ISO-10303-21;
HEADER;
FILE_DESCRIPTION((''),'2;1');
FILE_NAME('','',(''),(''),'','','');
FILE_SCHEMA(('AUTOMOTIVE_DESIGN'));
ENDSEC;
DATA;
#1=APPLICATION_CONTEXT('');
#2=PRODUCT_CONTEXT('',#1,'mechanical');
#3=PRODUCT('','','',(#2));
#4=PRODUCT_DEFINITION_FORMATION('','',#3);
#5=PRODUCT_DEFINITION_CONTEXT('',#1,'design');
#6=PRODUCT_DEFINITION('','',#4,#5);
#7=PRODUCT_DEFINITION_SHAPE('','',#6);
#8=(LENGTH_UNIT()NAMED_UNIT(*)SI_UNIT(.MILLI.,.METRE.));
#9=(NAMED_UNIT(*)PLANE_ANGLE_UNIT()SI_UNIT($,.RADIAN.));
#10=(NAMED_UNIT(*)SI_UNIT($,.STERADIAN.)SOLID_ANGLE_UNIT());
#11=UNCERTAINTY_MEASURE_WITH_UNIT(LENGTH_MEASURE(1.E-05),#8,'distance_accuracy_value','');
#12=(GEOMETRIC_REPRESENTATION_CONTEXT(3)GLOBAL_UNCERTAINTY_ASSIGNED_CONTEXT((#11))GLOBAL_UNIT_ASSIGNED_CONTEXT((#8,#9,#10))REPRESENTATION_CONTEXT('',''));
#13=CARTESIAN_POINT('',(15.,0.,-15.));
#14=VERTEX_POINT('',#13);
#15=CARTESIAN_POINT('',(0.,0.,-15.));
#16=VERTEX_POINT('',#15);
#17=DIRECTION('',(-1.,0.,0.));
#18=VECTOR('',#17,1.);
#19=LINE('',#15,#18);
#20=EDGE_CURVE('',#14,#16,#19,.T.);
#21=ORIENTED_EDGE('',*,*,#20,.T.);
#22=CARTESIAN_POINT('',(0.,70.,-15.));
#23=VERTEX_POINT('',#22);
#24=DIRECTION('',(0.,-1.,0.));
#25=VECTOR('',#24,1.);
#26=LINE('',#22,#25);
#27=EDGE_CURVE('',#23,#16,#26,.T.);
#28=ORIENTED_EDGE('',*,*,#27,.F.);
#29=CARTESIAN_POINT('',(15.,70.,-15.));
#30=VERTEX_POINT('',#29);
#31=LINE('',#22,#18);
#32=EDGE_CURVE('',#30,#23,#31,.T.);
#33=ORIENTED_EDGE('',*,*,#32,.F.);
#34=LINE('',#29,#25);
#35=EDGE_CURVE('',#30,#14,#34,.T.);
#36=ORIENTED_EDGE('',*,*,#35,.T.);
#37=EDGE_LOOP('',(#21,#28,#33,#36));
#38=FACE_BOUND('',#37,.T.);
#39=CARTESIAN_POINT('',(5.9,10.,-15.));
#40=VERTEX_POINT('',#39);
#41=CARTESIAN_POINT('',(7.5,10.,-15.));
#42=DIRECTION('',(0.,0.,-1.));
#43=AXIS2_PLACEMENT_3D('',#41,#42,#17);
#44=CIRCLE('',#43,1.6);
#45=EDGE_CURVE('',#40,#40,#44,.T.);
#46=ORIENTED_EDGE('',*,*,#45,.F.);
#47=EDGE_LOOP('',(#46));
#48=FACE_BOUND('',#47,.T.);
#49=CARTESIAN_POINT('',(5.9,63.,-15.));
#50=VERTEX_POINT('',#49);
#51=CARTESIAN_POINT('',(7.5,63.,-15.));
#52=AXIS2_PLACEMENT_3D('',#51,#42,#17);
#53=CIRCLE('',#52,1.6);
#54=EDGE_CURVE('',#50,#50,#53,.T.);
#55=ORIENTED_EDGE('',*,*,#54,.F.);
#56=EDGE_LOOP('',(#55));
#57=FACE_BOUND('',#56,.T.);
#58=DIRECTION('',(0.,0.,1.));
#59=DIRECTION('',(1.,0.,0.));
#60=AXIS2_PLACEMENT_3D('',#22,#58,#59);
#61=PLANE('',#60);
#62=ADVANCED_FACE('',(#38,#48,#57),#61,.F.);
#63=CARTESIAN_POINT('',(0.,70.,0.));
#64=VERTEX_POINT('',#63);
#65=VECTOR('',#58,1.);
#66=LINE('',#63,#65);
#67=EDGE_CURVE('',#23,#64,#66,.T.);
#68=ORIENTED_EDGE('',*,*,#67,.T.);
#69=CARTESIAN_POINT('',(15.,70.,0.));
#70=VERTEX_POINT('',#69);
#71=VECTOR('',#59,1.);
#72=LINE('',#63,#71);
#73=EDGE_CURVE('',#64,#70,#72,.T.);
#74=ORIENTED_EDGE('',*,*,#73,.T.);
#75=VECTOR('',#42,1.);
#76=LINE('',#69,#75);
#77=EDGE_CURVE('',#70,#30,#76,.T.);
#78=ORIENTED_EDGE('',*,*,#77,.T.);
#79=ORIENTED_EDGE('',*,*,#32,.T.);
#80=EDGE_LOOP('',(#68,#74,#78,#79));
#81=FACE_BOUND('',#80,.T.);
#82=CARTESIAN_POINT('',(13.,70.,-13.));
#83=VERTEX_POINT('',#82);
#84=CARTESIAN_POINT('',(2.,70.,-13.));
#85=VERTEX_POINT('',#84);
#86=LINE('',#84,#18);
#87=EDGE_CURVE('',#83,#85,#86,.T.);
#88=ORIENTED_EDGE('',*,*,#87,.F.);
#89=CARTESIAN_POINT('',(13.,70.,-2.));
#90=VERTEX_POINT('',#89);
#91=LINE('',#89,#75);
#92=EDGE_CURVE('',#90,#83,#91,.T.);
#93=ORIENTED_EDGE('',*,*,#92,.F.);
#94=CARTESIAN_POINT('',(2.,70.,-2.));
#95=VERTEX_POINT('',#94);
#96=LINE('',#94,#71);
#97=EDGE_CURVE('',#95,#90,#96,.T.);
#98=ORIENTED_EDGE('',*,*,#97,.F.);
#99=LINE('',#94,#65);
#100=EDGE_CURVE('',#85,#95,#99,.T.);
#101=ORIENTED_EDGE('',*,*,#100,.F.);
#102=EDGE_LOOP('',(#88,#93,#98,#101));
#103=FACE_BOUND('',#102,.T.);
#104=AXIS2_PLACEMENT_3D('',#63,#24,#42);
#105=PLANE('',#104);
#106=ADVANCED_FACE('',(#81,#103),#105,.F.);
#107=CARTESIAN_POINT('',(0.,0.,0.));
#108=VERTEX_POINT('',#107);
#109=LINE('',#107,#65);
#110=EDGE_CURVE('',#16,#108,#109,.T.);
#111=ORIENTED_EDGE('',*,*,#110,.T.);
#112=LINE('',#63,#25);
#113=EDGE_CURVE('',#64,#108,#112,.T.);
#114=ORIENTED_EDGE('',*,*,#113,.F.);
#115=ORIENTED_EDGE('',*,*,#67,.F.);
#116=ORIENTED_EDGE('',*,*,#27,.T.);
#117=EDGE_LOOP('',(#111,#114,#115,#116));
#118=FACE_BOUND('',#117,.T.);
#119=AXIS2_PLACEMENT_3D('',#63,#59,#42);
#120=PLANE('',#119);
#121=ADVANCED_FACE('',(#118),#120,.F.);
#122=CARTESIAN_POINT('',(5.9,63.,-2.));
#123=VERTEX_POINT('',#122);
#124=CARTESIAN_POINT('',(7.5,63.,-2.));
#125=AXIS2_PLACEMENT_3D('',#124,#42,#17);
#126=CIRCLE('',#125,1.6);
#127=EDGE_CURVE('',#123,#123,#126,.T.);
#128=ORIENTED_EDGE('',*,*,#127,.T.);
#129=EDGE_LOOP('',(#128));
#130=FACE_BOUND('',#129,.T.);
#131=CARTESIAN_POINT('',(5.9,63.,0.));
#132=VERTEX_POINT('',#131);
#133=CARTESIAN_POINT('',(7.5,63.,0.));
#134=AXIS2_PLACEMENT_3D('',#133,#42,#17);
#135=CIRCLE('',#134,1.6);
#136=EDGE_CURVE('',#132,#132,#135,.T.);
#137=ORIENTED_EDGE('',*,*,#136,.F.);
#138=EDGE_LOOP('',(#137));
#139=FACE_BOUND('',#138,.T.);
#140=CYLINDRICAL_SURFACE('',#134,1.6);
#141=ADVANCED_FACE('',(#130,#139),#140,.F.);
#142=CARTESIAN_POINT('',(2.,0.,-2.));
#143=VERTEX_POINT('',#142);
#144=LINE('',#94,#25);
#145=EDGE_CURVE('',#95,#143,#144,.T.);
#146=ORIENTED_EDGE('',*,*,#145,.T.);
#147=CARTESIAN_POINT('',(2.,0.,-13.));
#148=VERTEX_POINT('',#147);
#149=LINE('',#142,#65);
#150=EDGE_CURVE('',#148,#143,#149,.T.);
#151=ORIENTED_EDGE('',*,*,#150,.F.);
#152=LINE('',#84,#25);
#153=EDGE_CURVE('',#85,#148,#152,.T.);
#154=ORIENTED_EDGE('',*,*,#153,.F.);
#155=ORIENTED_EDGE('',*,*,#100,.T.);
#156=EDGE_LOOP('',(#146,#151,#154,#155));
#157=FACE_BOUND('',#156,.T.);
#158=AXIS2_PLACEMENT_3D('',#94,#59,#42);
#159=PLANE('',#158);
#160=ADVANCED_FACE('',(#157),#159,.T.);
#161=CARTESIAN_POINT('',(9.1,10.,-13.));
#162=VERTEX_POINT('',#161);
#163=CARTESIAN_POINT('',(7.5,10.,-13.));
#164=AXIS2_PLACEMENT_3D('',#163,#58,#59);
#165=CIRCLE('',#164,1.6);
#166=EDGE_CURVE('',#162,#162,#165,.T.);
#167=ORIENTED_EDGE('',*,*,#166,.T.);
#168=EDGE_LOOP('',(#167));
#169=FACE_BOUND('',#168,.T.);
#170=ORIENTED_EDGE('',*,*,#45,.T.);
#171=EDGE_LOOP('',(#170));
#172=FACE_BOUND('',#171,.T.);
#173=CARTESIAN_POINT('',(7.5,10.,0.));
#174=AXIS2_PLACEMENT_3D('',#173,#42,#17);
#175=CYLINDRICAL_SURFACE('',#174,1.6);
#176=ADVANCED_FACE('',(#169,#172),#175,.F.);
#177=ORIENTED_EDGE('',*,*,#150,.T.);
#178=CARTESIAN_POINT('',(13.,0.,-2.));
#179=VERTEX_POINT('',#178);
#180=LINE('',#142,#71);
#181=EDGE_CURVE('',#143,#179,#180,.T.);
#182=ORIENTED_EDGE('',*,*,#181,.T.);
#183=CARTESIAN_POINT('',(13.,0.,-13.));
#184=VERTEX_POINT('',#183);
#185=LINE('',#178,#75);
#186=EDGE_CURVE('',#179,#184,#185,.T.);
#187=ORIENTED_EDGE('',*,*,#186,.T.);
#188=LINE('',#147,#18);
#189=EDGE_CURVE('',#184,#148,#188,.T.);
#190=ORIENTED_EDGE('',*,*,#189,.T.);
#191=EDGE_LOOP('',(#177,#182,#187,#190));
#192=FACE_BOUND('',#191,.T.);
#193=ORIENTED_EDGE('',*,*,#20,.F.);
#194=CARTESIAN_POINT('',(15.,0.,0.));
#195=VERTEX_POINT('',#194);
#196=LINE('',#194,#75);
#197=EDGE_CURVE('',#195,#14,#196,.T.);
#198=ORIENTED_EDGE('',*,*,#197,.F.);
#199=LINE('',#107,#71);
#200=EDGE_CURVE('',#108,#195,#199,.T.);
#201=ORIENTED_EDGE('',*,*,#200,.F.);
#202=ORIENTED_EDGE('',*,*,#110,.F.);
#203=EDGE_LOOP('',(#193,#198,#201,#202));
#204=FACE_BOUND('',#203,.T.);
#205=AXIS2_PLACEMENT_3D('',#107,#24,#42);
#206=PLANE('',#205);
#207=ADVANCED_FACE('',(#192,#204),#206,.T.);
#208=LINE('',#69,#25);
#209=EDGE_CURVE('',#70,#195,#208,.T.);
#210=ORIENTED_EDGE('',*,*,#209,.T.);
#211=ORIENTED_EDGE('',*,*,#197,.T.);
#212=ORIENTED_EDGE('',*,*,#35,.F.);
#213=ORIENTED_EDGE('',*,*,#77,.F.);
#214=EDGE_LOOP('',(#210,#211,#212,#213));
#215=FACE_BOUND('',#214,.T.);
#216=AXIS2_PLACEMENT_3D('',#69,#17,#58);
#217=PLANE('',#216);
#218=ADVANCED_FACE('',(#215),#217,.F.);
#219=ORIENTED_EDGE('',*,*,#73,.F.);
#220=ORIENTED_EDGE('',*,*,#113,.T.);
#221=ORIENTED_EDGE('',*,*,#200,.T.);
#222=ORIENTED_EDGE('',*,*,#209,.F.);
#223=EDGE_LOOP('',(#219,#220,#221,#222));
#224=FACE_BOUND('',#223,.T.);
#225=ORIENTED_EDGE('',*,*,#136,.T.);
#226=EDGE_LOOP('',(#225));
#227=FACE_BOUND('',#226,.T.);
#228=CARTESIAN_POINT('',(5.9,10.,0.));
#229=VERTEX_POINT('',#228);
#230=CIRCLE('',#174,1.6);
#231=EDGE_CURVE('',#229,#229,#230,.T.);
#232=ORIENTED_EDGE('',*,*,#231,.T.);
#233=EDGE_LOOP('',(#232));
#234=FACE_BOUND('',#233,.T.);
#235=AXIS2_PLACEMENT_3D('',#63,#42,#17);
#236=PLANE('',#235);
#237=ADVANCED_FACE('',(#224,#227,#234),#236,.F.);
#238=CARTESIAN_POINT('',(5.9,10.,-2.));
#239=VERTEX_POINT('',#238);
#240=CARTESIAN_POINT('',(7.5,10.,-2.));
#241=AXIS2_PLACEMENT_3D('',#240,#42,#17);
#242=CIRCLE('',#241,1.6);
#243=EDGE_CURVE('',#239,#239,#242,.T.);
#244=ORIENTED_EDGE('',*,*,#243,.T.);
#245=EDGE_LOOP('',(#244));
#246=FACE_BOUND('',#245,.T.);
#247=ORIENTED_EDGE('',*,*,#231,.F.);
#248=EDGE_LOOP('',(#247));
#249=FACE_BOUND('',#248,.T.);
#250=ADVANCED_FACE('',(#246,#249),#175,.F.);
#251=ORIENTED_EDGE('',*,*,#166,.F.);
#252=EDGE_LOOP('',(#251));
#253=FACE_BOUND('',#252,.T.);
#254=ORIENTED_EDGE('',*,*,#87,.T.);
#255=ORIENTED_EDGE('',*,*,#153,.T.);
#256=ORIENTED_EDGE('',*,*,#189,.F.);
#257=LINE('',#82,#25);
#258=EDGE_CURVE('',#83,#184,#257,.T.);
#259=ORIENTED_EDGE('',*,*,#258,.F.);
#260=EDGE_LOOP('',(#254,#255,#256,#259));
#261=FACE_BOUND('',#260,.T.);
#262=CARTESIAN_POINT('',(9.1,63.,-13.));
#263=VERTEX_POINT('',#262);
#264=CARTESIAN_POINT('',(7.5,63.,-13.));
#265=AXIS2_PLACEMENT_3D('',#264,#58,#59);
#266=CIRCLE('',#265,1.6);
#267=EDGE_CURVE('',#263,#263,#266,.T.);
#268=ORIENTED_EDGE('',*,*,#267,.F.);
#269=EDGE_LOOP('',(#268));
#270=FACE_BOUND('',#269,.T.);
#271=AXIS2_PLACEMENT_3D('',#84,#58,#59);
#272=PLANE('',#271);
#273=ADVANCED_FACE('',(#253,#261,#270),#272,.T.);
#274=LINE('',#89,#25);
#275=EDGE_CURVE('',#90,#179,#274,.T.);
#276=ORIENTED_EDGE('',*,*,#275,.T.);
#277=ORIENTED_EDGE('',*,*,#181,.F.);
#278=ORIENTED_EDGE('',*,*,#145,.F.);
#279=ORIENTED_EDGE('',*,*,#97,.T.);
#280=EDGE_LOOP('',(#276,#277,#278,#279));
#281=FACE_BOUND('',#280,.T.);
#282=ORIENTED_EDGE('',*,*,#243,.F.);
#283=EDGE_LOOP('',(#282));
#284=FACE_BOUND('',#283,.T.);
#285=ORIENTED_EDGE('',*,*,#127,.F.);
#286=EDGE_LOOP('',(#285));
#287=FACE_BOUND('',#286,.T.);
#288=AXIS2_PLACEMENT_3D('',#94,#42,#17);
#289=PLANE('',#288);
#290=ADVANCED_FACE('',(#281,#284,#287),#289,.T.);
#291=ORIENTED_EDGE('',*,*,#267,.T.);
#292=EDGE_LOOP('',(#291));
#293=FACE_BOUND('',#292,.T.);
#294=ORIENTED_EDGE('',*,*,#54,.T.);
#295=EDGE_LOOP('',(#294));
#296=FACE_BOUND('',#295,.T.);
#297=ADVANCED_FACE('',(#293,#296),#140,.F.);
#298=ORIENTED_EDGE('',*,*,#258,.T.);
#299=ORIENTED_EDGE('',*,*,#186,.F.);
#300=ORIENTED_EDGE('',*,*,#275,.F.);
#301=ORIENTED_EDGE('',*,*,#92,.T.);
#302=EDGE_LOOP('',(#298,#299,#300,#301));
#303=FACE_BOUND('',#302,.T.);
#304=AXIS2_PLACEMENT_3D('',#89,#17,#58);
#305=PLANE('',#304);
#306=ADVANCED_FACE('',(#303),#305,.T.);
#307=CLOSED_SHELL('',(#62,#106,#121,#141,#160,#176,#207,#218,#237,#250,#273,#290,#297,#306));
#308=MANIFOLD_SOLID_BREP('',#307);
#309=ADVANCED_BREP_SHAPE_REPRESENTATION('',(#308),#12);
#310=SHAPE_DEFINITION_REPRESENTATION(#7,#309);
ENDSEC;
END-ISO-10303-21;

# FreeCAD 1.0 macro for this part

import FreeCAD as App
import Part
import Sketcher

V = App.Vector
Q = App.Units.Quantity

doc = App.newDocument("Part")
params = doc.addObject("Spreadsheet::Sheet", "Params")
for row, (alias, value) in enumerate([
    ("sketch1_width", "15 mm"),
    ("sketch1_width2", "11 mm"),
    ("pad1_length", "70 mm"),
    ("sketch2_diameter", "3.2 mm"),
], start=1):
    params.set(f"A{row}", alias)
    params.set(f"B{row}", "=" + value)
    params.setAlias(f"B{row}", alias)

body = doc.addObject("PartDesign::Body", "Body")

# Sketch on XZ plane
sketch1 = body.newObject("Sketcher::SketchObject", "Sketch")
sketch1.AttachmentSupport = (doc.getObject("XZ_Plane"), [""])
sketch1.MapMode = "FlatFace"
sketch1.addGeometry([
    Part.LineSegment(V(0, -15, 0), V(0, 0, 0)),  # 0
    Part.LineSegment(V(0, 0, 0), V(15, 0, 0)),  # 1
    Part.LineSegment(V(15, 0, 0), V(15, -15, 0)),  # 2
    Part.LineSegment(V(15, -15, 0), V(0, -15, 0)),  # 3
    Part.LineSegment(V(13, -2, 0), V(2, -2, 0)),  # 4
    Part.LineSegment(V(2, -2, 0), V(2, -13, 0)),  # 5
    Part.LineSegment(V(2, -13, 0), V(13, -13, 0)),  # 6
    Part.LineSegment(V(13, -13, 0), V(13, -2, 0)),  # 7
], False)
sketch1.addConstraint([
    Sketcher.Constraint("Coincident", 0, 2, 1, 1),
    Sketcher.Constraint("Coincident", 1, 2, 2, 1),
    Sketcher.Constraint("Coincident", 2, 2, 3, 1),
    Sketcher.Constraint("Coincident", 3, 2, 0, 1),
    Sketcher.Constraint("Coincident", 4, 2, 5, 1),
    Sketcher.Constraint("Coincident", 5, 2, 6, 1),
    Sketcher.Constraint("Coincident", 6, 2, 7, 1),
    Sketcher.Constraint("Coincident", 7, 2, 4, 1),
    Sketcher.Constraint("Vertical", 0),
    Sketcher.Constraint("Horizontal", 1),
    Sketcher.Constraint("Vertical", 2),
    Sketcher.Constraint("Horizontal", 3),
    Sketcher.Constraint("Horizontal", 4),
    Sketcher.Constraint("Vertical", 5),
    Sketcher.Constraint("Horizontal", 6),
    Sketcher.Constraint("Vertical", 7),
    Sketcher.Constraint("Coincident", 0, 2, -1, 1),
    Sketcher.Constraint("Equal", 3, 0),
    Sketcher.Constraint("Equal", 6, 5),
    Sketcher.Constraint("DistanceX", 1, 1, 1, 2, Q("15 mm")),
    Sketcher.Constraint("DistanceX", 4, 2, 4, 1, Q("11 mm")),
    Sketcher.Constraint("DistanceX", -1, 1, 4, 2, Q("2 mm")),
    Sketcher.Constraint("DistanceY", 4, 2, -1, 1, Q("2 mm")),
])
sketch1.setExpression("Constraints[19]", "Params.sketch1_width")
sketch1.setExpression("Constraints[20]", "Params.sketch1_width2")
pad1 = body.newObject("PartDesign::Pad", "Pad")
pad1.Profile = sketch1
pad1.setExpression("Length", "Params.pad1_length")
pad1.Reversed = True

# Sketch on XY plane
sketch2 = body.newObject("Sketcher::SketchObject", "Sketch001")
sketch2.AttachmentSupport = (doc.getObject("XY_Plane"), [""])
sketch2.MapMode = "FlatFace"
sketch2.AttachmentOffset = App.Placement(V(0, 0, -15), App.Rotation())
sketch2.addGeometry([
    Part.Circle(V(7.5, 63, 0), V(0, 0, 1), 1.6),
    Part.Circle(V(7.5, 10, 0), V(0, 0, 1), 1.6),
], False)
sketch2.addConstraint([
    Sketcher.Constraint("Equal", 0, 1),
    Sketcher.Constraint("Vertical", 0, 3, 1, 3),
    Sketcher.Constraint("Diameter", 0, Q("3.2 mm")),
    Sketcher.Constraint("DistanceY", -1, 1, 0, 3, Q("63 mm")),
    Sketcher.Constraint("DistanceY", -1, 1, 1, 3, Q("10 mm")),
    Sketcher.Constraint("DistanceX", -1, 1, 0, 3, Q("7.5 mm")),
])
sketch2.setExpression("Constraints[2]", "Params.sketch2_diameter")
pocket1 = body.newObject("PartDesign::Pocket", "Pocket")
pocket1.Profile = sketch2
pocket1.Type = "ThroughAll"
pocket1.Reversed = True

doc.recompute()
